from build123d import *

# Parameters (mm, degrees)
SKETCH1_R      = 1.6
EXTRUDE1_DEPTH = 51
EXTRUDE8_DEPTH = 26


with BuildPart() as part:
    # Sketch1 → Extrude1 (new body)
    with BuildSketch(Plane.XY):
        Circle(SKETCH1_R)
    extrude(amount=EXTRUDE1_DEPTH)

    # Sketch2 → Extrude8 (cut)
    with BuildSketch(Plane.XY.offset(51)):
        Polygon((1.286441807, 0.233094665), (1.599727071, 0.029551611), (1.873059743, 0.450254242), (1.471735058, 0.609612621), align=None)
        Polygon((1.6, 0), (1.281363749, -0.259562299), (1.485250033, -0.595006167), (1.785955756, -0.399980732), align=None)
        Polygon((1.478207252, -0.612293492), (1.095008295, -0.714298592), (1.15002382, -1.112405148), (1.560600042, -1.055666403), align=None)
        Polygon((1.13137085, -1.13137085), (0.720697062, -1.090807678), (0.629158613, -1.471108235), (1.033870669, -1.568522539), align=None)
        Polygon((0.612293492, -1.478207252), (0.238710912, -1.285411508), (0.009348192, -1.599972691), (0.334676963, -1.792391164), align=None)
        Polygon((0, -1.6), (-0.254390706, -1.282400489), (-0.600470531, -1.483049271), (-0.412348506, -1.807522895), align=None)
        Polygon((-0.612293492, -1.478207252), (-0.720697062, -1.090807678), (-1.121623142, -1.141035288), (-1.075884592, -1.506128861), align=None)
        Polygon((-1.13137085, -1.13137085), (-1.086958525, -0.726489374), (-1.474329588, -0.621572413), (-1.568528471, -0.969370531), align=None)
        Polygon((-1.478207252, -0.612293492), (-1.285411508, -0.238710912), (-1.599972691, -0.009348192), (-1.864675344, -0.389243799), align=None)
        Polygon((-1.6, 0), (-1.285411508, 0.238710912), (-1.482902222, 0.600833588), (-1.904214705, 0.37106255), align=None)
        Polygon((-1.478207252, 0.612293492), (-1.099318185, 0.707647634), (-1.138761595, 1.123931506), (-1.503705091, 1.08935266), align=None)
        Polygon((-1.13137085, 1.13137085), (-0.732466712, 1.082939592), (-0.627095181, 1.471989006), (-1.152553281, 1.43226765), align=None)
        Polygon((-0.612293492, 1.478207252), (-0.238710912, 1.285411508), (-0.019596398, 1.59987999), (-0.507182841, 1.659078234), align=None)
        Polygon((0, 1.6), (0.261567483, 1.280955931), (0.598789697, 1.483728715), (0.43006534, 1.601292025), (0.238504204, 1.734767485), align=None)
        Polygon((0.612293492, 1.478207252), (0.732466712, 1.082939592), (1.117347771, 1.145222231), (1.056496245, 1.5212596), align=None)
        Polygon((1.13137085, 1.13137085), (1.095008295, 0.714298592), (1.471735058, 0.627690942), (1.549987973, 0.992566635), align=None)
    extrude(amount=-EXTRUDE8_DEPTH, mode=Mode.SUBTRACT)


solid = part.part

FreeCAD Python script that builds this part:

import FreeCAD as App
import Part
import Sketcher

V = App.Vector

doc = App.newDocument("Part")
body = doc.addObject("PartDesign::Body", "Body")

sketch1 = doc.addObject("Sketcher::SketchObject", "Sketch")
body.addObject(sketch1)
sketch1.AttachmentSupport = (doc.XY_Plane, [""])
sketch1.MapMode = "FlatFace"
sketch1.addGeometry(Part.Circle(V(0, 0, 0), V(0, 0, 1), 1.6), False)
sketch1.addConstraint([
    Sketcher.Constraint("Coincident", 0, 3, -1, 1),
    Sketcher.Constraint("Diameter", 0, 3.2),
])
pad1 = doc.addObject("PartDesign::Pad", "Pad")
body.addObject(pad1)
pad1.Profile = sketch1
pad1.Length = 51

sketch2 = doc.addObject("Sketcher::SketchObject", "Sketch001")
body.addObject(sketch2)
sketch2.AttachmentSupport = (doc.XY_Plane, [""])
sketch2.MapMode = "FlatFace"
sketch2.AttachmentOffset = App.Placement(V(0, 0, 51), App.Rotation())
sketch2.addGeometry([
    Part.LineSegment(V(1.29, 0.23, 0), V(1.6, 0.03, 0)),
    Part.LineSegment(V(1.6, 0.03, 0), V(1.87, 0.45, 0)),
    Part.LineSegment(V(1.87, 0.45, 0), V(1.47, 0.61, 0)),
    Part.LineSegment(V(1.47, 0.61, 0), V(1.29, 0.23, 0)),
    Part.LineSegment(V(1.6, 0, 0), V(1.28, -0.26, 0)),
    Part.LineSegment(V(1.28, -0.26, 0), V(1.49, -0.6, 0)),
    Part.LineSegment(V(1.49, -0.6, 0), V(1.79, -0.4, 0)),
    Part.LineSegment(V(1.79, -0.4, 0), V(1.6, 0, 0)),
    Part.LineSegment(V(1.48, -0.61, 0), V(1.1, -0.71, 0)),
    Part.LineSegment(V(1.1, -0.71, 0), V(1.15, -1.11, 0)),
    Part.LineSegment(V(1.15, -1.11, 0), V(1.56, -1.06, 0)),
    Part.LineSegment(V(1.56, -1.06, 0), V(1.48, -0.61, 0)),
    Part.LineSegment(V(1.13, -1.13, 0), V(0.72, -1.09, 0)),
    Part.LineSegment(V(0.72, -1.09, 0), V(0.63, -1.47, 0)),
    Part.LineSegment(V(0.63, -1.47, 0), V(1.03, -1.57, 0)),
    Part.LineSegment(V(1.03, -1.57, 0), V(1.13, -1.13, 0)),
    Part.LineSegment(V(0.61, -1.48, 0), V(0.24, -1.29, 0)),
    Part.LineSegment(V(0.24, -1.29, 0), V(0.01, -1.6, 0)),
    Part.LineSegment(V(0.01, -1.6, 0), V(0.33, -1.79, 0)),
    Part.LineSegment(V(0.33, -1.79, 0), V(0.61, -1.48, 0)),
    Part.LineSegment(V(0, -1.6, 0), V(-0.25, -1.28, 0)),
    Part.LineSegment(V(-0.25, -1.28, 0), V(-0.6, -1.48, 0)),
    Part.LineSegment(V(-0.6, -1.48, 0), V(-0.41, -1.81, 0)),
    Part.LineSegment(V(-0.41, -1.81, 0), V(0, -1.6, 0)),
    Part.LineSegment(V(-0.61, -1.48, 0), V(-0.72, -1.09, 0)),
    Part.LineSegment(V(-0.72, -1.09, 0), V(-1.12, -1.14, 0)),
    Part.LineSegment(V(-1.12, -1.14, 0), V(-1.08, -1.51, 0)),
    Part.LineSegment(V(-1.08, -1.51, 0), V(-0.61, -1.48, 0)),
    Part.LineSegment(V(-1.13, -1.13, 0), V(-1.09, -0.73, 0)),
    Part.LineSegment(V(-1.09, -0.73, 0), V(-1.47, -0.62, 0)),
    Part.LineSegment(V(-1.47, -0.62, 0), V(-1.57, -0.97, 0)),
    Part.LineSegment(V(-1.57, -0.97, 0), V(-1.13, -1.13, 0)),
    Part.LineSegment(V(-1.48, -0.61, 0), V(-1.29, -0.24, 0)),
    Part.LineSegment(V(-1.29, -0.24, 0), V(-1.6, -0.01, 0)),
    Part.LineSegment(V(-1.6, -0.01, 0), V(-1.86, -0.39, 0)),
    Part.LineSegment(V(-1.86, -0.39, 0), V(-1.48, -0.61, 0)),
    Part.LineSegment(V(-1.6, 0, 0), V(-1.29, 0.24, 0)),
    Part.LineSegment(V(-1.29, 0.24, 0), V(-1.48, 0.6, 0)),
    Part.LineSegment(V(-1.48, 0.6, 0), V(-1.9, 0.37, 0)),
    Part.LineSegment(V(-1.9, 0.37, 0), V(-1.6, 0, 0)),
    Part.LineSegment(V(-1.48, 0.61, 0), V(-1.1, 0.71, 0)),
    Part.LineSegment(V(-1.1, 0.71, 0), V(-1.14, 1.12, 0)),
    Part.LineSegment(V(-1.14, 1.12, 0), V(-1.5, 1.09, 0)),
    Part.LineSegment(V(-1.5, 1.09, 0), V(-1.48, 0.61, 0)),
    Part.LineSegment(V(-1.13, 1.13, 0), V(-0.73, 1.08, 0)),
    Part.LineSegment(V(-0.73, 1.08, 0), V(-0.63, 1.47, 0)),
    Part.LineSegment(V(-0.63, 1.47, 0), V(-1.15, 1.43, 0)),
    Part.LineSegment(V(-1.15, 1.43, 0), V(-1.13, 1.13, 0)),
    Part.LineSegment(V(-0.61, 1.48, 0), V(-0.24, 1.29, 0)),
    Part.LineSegment(V(-0.24, 1.29, 0), V(-0.02, 1.6, 0)),
    Part.LineSegment(V(-0.02, 1.6, 0), V(-0.51, 1.66, 0)),
    Part.LineSegment(V(-0.51, 1.66, 0), V(-0.61, 1.48, 0)),
    Part.LineSegment(V(0, 1.6, 0), V(0.26, 1.28, 0)),
    Part.LineSegment(V(0.26, 1.28, 0), V(0.6, 1.48, 0)),
    Part.LineSegment(V(0.6, 1.48, 0), V(0.43, 1.6, 0)),
    Part.LineSegment(V(0.43, 1.6, 0), V(0.24, 1.73, 0)),
    Part.LineSegment(V(0.24, 1.73, 0), V(0, 1.6, 0)),
    Part.LineSegment(V(0.61, 1.48, 0), V(0.73, 1.08, 0)),
    Part.LineSegment(V(0.73, 1.08, 0), V(1.12, 1.15, 0)),
    Part.LineSegment(V(1.12, 1.15, 0), V(1.06, 1.52, 0)),
    Part.LineSegment(V(1.06, 1.52, 0), V(0.61, 1.48, 0)),
    Part.LineSegment(V(1.13, 1.13, 0), V(1.1, 0.71, 0)),
    Part.LineSegment(V(1.1, 0.71, 0), V(1.47, 0.63, 0)),
    Part.LineSegment(V(1.47, 0.63, 0), V(1.55, 0.99, 0)),
    Part.LineSegment(V(1.55, 0.99, 0), V(1.13, 1.13, 0)),
], False)
sketch2.addConstraint([
    Sketcher.Constraint("Coincident", 0, 2, 1, 1),
    Sketcher.Constraint("Coincident", 1, 2, 2, 1),
    Sketcher.Constraint("Coincident", 2, 2, 3, 1),
    Sketcher.Constraint("Coincident", 3, 2, 0, 1),
    Sketcher.Constraint("Coincident", 4, 2, 5, 1),
    Sketcher.Constraint("Coincident", 5, 2, 6, 1),
    Sketcher.Constraint("Coincident", 6, 2, 7, 1),
    Sketcher.Constraint("Coincident", 7, 2, 4, 1),
    Sketcher.Constraint("Coincident", 8, 2, 9, 1),
    Sketcher.Constraint("Coincident", 9, 2, 10, 1),
    Sketcher.Constraint("Coincident", 10, 2, 11, 1),
    Sketcher.Constraint("Coincident", 11, 2, 8, 1),
    Sketcher.Constraint("Coincident", 12, 2, 13, 1),
    Sketcher.Constraint("Coincident", 13, 2, 14, 1),
    Sketcher.Constraint("Coincident", 14, 2, 15, 1),
    Sketcher.Constraint("Coincident", 15, 2, 12, 1),
    Sketcher.Constraint("Coincident", 16, 2, 17, 1),
    Sketcher.Constraint("Coincident", 17, 2, 18, 1),
    Sketcher.Constraint("Coincident", 18, 2, 19, 1),
    Sketcher.Constraint("Coincident", 19, 2, 16, 1),
    Sketcher.Constraint("Coincident", 20, 2, 21, 1),
    Sketcher.Constraint("Coincident", 21, 2, 22, 1),
    Sketcher.Constraint("Coincident", 22, 2, 23, 1),
    Sketcher.Constraint("Coincident", 23, 2, 20, 1),
    Sketcher.Constraint("Coincident", 24, 2, 25, 1),
    Sketcher.Constraint("Coincident", 25, 2, 26, 1),
    Sketcher.Constraint("Coincident", 26, 2, 27, 1),
    Sketcher.Constraint("Coincident", 27, 2, 24, 1),
    Sketcher.Constraint("Coincident", 28, 2, 29, 1),
    Sketcher.Constraint("Coincident", 29, 2, 30, 1),
    Sketcher.Constraint("Coincident", 30, 2, 31, 1),
    Sketcher.Constraint("Coincident", 31, 2, 28, 1),
    Sketcher.Constraint("Coincident", 32, 2, 33, 1),
    Sketcher.Constraint("Coincident", 33, 2, 34, 1),
    Sketcher.Constraint("Coincident", 34, 2, 35, 1),
    Sketcher.Constraint("Coincident", 35, 2, 32, 1),
    Sketcher.Constraint("Coincident", 36, 2, 37, 1),
    Sketcher.Constraint("Coincident", 37, 2, 38, 1),
    Sketcher.Constraint("Coincident", 38, 2, 39, 1),
    Sketcher.Constraint("Coincident", 39, 2, 36, 1),
    Sketcher.Constraint("Coincident", 40, 2, 41, 1),
    Sketcher.Constraint("Coincident", 41, 2, 42, 1),
    Sketcher.Constraint("Coincident", 42, 2, 43, 1),
    Sketcher.Constraint("Coincident", 43, 2, 40, 1),
    Sketcher.Constraint("Coincident", 44, 2, 45, 1),
    Sketcher.Constraint("Coincident", 45, 2, 46, 1),
    Sketcher.Constraint("Coincident", 46, 2, 47, 1),
    Sketcher.Constraint("Coincident", 47, 2, 44, 1),
    Sketcher.Constraint("Coincident", 48, 2, 49, 1),
    Sketcher.Constraint("Coincident", 49, 2, 50, 1),
    Sketcher.Constraint("Coincident", 50, 2, 51, 1),
    Sketcher.Constraint("Coincident", 51, 2, 48, 1),
    Sketcher.Constraint("Coincident", 52, 2, 53, 1),
    Sketcher.Constraint("Coincident", 53, 2, 54, 1),
    Sketcher.Constraint("Coincident", 54, 2, 55, 1),
    Sketcher.Constraint("Coincident", 55, 2, 56, 1),
    Sketcher.Constraint("Coincident", 56, 2, 52, 1),
    Sketcher.Constraint("Coincident", 57, 2, 58, 1),
    Sketcher.Constraint("Coincident", 58, 2, 59, 1),
    Sketcher.Constraint("Coincident", 59, 2, 60, 1),
    Sketcher.Constraint("Coincident", 60, 2, 57, 1),
    Sketcher.Constraint("Coincident", 61, 2, 62, 1),
    Sketcher.Constraint("Coincident", 62, 2, 63, 1),
    Sketcher.Constraint("Coincident", 63, 2, 64, 1),
    Sketcher.Constraint("Coincident", 64, 2, 61, 1),
    Sketcher.Constraint("Symmetric", 7, 2, 39, 2, -1, 1),
    Sketcher.Constraint("Symmetric", 11, 2, 43, 2, -1, 1),
    Sketcher.Constraint("Symmetric", 15, 2, 47, 2, -1, 1),
    Sketcher.Constraint("Symmetric", 16, 2, 48, 2, -1, 1),
    Sketcher.Constraint("Symmetric", 19, 2, 51, 2, -1, 1),
    Sketcher.Constraint("Symmetric", 23, 2, 56, 2, -1, 1),
    Sketcher.Constraint("Symmetric", 27, 2, 60, 2, -1, 1),
    Sketcher.Constraint("Symmetric", 31, 2, 64, 2, -1, 1),
    Sketcher.Constraint("Symmetric", 12, 2, 24, 2, -2),
    Sketcher.Constraint("Symmetric", 19, 2, 27, 2, -2),
    Sketcher.Constraint("Symmetric", 15, 2, 31, 2, -2),
    Sketcher.Constraint("Symmetric", 11, 2, 35, 2, -2),
    Sketcher.Constraint("Symmetric", 44, 2, 57, 2, -2),
    Sketcher.Constraint("Symmetric", 32, 2, 36, 2, -1),
    Sketcher.Constraint("Symmetric", 8, 2, 61, 2, -1),
    Sketcher.Constraint("PointOnObject", 7, 2, -1),
    Sketcher.Constraint("PointOnObject", 23, 2, -2),
    Sketcher.Constraint("Perpendicular", 0, 1),
    Sketcher.Constraint("Perpendicular", 9, 10),
    Sketcher.Constraint("Perpendicular", 13, 14),
    Sketcher.Constraint("Perpendicular", 21, 22),
    Sketcher.Constraint("Perpendicular", 25, 26),
    Sketcher.Constraint("Perpendicular", 29, 30),
    Sketcher.Constraint("Perpendicular", 16, 32),
    Sketcher.Constraint("Perpendicular", 17, 33),
    Sketcher.Constraint("Perpendicular", 37, 38),
    Sketcher.Constraint("Perpendicular", 41, 42),
    Sketcher.Constraint("Parallel", 30, 45),
    Sketcher.Constraint("Parallel", 34, 49),
    Sketcher.Constraint("Parallel", 44, 50),
    Sketcher.Constraint("Parallel", 39, 52),
    Sketcher.Constraint("Perpendicular", 49, 54),
    Sketcher.Constraint("Parallel", 54, 55),
    Sketcher.Constraint("Perpendicular", 58, 59),
    Sketcher.Constraint("Vertical", 2, 2, 62, 2),
    Sketcher.Constraint("Equal", 16, 32),
    Sketcher.Constraint("Equal", 17, 33),
    Sketcher.Constraint("DistanceX", -1, 1, 7, 2, 1.6),
    Sketcher.Constraint("DistanceY", 23, 2, -1, 1, 1.6),
    Sketcher.Constraint("Distance", 0, 0.373601),
    Sketcher.Constraint("Distance", 1, 0.501699),
    Sketcher.Constraint("Distance", 17, 0.389302),
    Sketcher.Constraint("DistanceY", 8, 2, -1, 1, 0.714299),
    Sketcher.Constraint("DistanceX", -1, 1, 10, 2, 1.5606),
    Sketcher.Constraint("DistanceY", 20, 2, -1, 1, 1.2824),
    Sketcher.Constraint("Distance", 3, 0.419642),
    Sketcher.Constraint("Distance", 6, 0.358412),
    Sketcher.Constraint("Distance", 9, 0.40189),
    Sketcher.Constraint("Distance", 10, 0.414478),
    Sketcher.Constraint("Distance", 14, 0.416271),
    Sketcher.Constraint("Distance", 20, 0.40692),
    Sketcher.Constraint("Distance", 21, 0.400039),
    Sketcher.Constraint("Distance", 24, 0.402281),
    Sketcher.Constraint("Distance", 25, 0.40406),
    Sketcher.Constraint("Distance", 27, 0.464431),
    Sketcher.Constraint("Distance", 28, 0.40731),
    Sketcher.Constraint("Distance", 30, 0.360329),
    Sketcher.Constraint("Distance", 31, 0.466209),
    Sketcher.Constraint("Distance", 34, 0.463021),
    Sketcher.Constraint("Distance", 41, 0.418148),
    Sketcher.Constraint("Distance", 42, 0.366578),
    Sketcher.Constraint("Distance", 43, 0.47774),
    Sketcher.Constraint("Distance", 47, 0.301641),
    Sketcher.Constraint("Distance", 52, 0.412561),
    Sketcher.Constraint("Distance", 53, 0.393492),
    Sketcher.Constraint("Distance", 59, 0.380929),
    Sketcher.Constraint("Distance", 64, 0.441029),
    Sketcher.Constraint("DistanceY", -1, 1, 0, 2, 0.029552),
    Sketcher.Constraint("DistanceX", -1, 1, 1, 2, 1.87306),
    Sketcher.Constraint("DistanceX", -1, 1, 3, 2, 1.286442),
    Sketcher.Constraint("DistanceX", -1, 1, 5, 2, 1.48525),
    Sketcher.Constraint("DistanceY", 6, 2, -1, 1, 0.399981),
    Sketcher.Constraint("DistanceX", -1, 1, 8, 2, 1.095008),
    Sketcher.Constraint("DistanceX", -1, 1, 13, 2, 0.629159),
    Sketcher.Constraint("DistanceY", 13, 2, -1, 1, 1.471108),
    Sketcher.Constraint("DistanceX", -1, 1, 14, 2, 1.033871),
    Sketcher.Constraint("DistanceX", -1, 1, 15, 2, 1.131371),
    Sketcher.Constraint("DistanceY", 15, 2, -1, 1, 1.131371),
    Sketcher.Constraint("DistanceX", -1, 1, 16, 2, 0.238711),
    Sketcher.Constraint("DistanceY", 16, 2, -1, 1, 1.285412),
    Sketcher.Constraint("DistanceX", -1, 1, 17, 2, 0.009348),
    Sketcher.Constraint("DistanceY", 18, 2, -1, 1, 1.792391),
    Sketcher.Constraint("DistanceX", 21, 2, -1, 1, 0.600471),
    Sketcher.Constraint("DistanceX", 22, 2, -1, 1, 0.412349),
    Sketcher.Constraint("DistanceY", 26, 2, -1, 1, 1.506129),
    Sketcher.Constraint("DistanceX", 28, 2, -1, 1, 1.086959),
    Sketcher.Constraint("DistanceX", 29, 2, -1, 1, 1.47433),
    Sketcher.Constraint("DistanceX", 32, 2, -1, 1, 1.285412),
    Sketcher.Constraint("DistanceY", 32, 2, -1, 1, 0.238711),
    Sketcher.Constraint("DistanceX", 40, 2, -1, 1, 1.099318),
    Sketcher.Constraint("DistanceX", 41, 2, -1, 1, 1.138762),
    Sketcher.Constraint("DistanceY", -1, 1, 41, 2, 1.123932),
    Sketcher.Constraint("DistanceY", -1, 1, 44, 2, 1.08294),
    Sketcher.Constraint("DistanceY", -1, 1, 45, 2, 1.471989),
    Sketcher.Constraint("DistanceY", -1, 1, 49, 2, 1.59988),
    Sketcher.Constraint("DistanceY", -1, 1, 50, 2, 1.659078),
    Sketcher.Constraint("DistanceX", -1, 1, 53, 2, 0.59879),
    Sketcher.Constraint("DistanceY", -1, 1, 53, 2, 1.483729),
    Sketcher.Constraint("DistanceY", -1, 1, 59, 2, 1.52126),
    Sketcher.Constraint("DistanceY", -1, 1, 62, 2, 0.627691),
    Sketcher.Constraint("Distance", 2, 0.431806),
    Sketcher.Constraint("Distance", 4, 0.410976),
    Sketcher.Constraint("Distance", 5, 0.392546),
    Sketcher.Constraint("Distance", 7, 0.441094),
    Sketcher.Constraint("Distance", 8, 0.396543),
    Sketcher.Constraint("Distance", 18, 0.377973),
    Sketcher.Constraint("Distance", 35, 0.446216),
    Sketcher.Constraint("Distance", 37, 0.412475),
    Sketcher.Constraint("Distance", 38, 0.479895),
    Sketcher.Constraint("Distance", 44, 0.401833),
    Sketcher.Constraint("Distance", 46, 0.526957),
    Sketcher.Constraint("Distance", 54, 0.205643),
    Sketcher.Constraint("Distance", 55, 0.233477),
    Sketcher.Constraint("Distance", 58, 0.389888),
    Sketcher.Constraint("Distance", 63, 0.373173),
])
pocket1 = doc.addObject("PartDesign::Pocket", "Pocket")
body.addObject(pocket1)
pocket1.Profile = sketch2
pocket1.Length = 26

doc.recompute()
